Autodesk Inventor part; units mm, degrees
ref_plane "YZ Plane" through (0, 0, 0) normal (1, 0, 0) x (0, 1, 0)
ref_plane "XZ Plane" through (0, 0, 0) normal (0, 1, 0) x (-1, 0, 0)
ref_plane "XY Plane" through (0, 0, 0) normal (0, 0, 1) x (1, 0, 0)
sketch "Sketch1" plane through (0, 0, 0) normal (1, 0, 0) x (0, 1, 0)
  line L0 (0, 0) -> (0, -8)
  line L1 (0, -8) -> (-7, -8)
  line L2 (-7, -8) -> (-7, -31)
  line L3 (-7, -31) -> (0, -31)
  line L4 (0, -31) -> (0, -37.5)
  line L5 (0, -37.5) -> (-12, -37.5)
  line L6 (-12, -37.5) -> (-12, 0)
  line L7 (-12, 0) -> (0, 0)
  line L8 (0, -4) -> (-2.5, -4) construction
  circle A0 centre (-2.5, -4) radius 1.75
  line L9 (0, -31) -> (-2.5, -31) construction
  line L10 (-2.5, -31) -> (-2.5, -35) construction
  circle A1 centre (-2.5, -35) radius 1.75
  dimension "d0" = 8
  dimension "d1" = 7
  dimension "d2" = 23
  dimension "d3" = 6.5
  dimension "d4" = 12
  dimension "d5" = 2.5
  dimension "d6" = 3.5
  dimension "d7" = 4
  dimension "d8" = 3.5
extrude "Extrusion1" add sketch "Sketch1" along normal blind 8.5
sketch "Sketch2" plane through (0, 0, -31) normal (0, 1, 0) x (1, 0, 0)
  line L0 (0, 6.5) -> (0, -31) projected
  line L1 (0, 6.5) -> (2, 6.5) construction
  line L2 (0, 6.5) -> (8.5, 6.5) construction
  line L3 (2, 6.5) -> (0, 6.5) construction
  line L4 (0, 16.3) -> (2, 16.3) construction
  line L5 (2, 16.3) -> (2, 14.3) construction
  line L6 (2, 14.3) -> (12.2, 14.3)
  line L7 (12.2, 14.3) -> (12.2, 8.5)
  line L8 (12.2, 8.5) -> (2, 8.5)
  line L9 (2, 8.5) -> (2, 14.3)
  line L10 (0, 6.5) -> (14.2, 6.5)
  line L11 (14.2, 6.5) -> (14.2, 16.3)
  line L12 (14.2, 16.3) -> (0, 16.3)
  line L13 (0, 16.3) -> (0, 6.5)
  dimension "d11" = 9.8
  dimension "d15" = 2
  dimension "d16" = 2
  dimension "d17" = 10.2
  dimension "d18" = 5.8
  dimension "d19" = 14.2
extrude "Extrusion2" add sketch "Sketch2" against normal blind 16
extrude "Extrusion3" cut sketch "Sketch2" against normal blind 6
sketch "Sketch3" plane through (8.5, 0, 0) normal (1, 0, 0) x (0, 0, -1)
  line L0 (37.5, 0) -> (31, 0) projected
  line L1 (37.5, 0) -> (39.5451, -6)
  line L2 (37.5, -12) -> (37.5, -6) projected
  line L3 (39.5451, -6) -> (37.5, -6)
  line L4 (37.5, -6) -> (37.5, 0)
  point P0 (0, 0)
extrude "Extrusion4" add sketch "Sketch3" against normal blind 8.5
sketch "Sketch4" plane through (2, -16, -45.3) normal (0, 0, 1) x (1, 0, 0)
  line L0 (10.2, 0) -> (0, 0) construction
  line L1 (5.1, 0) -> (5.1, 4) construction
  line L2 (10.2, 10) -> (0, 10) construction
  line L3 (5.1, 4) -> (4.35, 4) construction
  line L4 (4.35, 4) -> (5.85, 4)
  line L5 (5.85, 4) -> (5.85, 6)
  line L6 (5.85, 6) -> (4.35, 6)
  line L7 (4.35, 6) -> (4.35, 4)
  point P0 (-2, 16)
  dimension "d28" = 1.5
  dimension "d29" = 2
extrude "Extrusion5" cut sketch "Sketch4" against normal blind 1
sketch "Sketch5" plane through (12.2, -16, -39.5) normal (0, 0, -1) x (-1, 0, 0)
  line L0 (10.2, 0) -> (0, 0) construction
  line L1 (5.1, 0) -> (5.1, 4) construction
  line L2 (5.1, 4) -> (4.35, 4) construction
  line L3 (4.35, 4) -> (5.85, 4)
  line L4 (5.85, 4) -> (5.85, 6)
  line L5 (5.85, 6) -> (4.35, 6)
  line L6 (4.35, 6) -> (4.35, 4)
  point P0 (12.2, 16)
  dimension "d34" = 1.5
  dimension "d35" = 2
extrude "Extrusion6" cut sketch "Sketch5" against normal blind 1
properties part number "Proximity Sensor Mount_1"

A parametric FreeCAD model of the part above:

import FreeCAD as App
import Part
import Sketcher

V = App.Vector
Q = App.Units.Quantity

doc = App.newDocument("Part")
body = doc.addObject("PartDesign::Body", "Body")

sketch1 = body.newObject("Sketcher::SketchObject", "Sketch")
sketch1.AttachmentSupport = (doc.getObject("YZ_Plane"), [""])
sketch1.MapMode = "FlatFace"
sketch1.addGeometry([
    Part.LineSegment(V(0, -8, 0), V(0, 0, 0)),
    Part.LineSegment(V(0, 0, 0), V(-12, 0, 0)),
    Part.LineSegment(V(-12, 0, 0), V(-12, -37.5, 0)),
    Part.LineSegment(V(-12, -37.5, 0), V(0, -37.5, 0)),
    Part.LineSegment(V(0, -37.5, 0), V(0, -31, 0)),
    Part.LineSegment(V(0, -31, 0), V(-7, -31, 0)),
    Part.LineSegment(V(-7, -31, 0), V(-7, -8, 0)),
    Part.LineSegment(V(-7, -8, 0), V(0, -8, 0)),
    Part.Circle(V(-2.5, -35, 0), V(0, 0, 1), 1.8),
    Part.Circle(V(-2.5, -4, 0), V(0, 0, 1), 1.8),
], False)
sketch1.addConstraint([
    Sketcher.Constraint("Coincident", 0, 2, 1, 1),
    Sketcher.Constraint("Coincident", 1, 2, 2, 1),
    Sketcher.Constraint("Coincident", 2, 2, 3, 1),
    Sketcher.Constraint("Coincident", 3, 2, 4, 1),
    Sketcher.Constraint("Coincident", 4, 2, 5, 1),
    Sketcher.Constraint("Coincident", 5, 2, 6, 1),
    Sketcher.Constraint("Coincident", 6, 2, 7, 1),
    Sketcher.Constraint("Coincident", 7, 2, 0, 1),
    Sketcher.Constraint("Vertical", 0),
    Sketcher.Constraint("Horizontal", 1),
    Sketcher.Constraint("Vertical", 2),
    Sketcher.Constraint("Horizontal", 3),
    Sketcher.Constraint("Vertical", 4),
    Sketcher.Constraint("Horizontal", 5),
    Sketcher.Constraint("Vertical", 6),
    Sketcher.Constraint("Horizontal", 7),
    Sketcher.Constraint("Coincident", 0, 2, -1, 1),
    Sketcher.Constraint("Equal", 8, 9),
    Sketcher.Constraint("PointOnObject", 3, 2, -2),
    Sketcher.Constraint("Vertical", 8, 3, 9, 3),
    Sketcher.Constraint("Diameter", 8, Q("3.5 mm")),
    Sketcher.Constraint("DistanceX", 1, 2, 1, 1, Q("12 mm")),
    Sketcher.Constraint("DistanceX", 5, 2, 5, 1, Q("7 mm")),
    Sketcher.Constraint("DistanceY", 0, 1, 0, 2, Q("8 mm")),
    Sketcher.Constraint("DistanceY", 6, 1, 6, 2, Q("23 mm")),
    Sketcher.Constraint("DistanceY", 4, 1, 4, 2, Q("6.5 mm")),
    Sketcher.Constraint("DistanceY", 9, 3, -1, 1, Q("4 mm")),
    Sketcher.Constraint("DistanceY", 8, 3, 4, 2, Q("4 mm")),
    Sketcher.Constraint("DistanceX", 8, 3, -1, 1, Q("2.5 mm")),
])
pad1 = body.newObject("PartDesign::Pad", "Pad")
pad1.Profile = sketch1
pad1.Length = 8.5

sketch2 = body.newObject("Sketcher::SketchObject", "Sketch001")
sketch2.AttachmentSupport = (doc.getObject("XZ_Plane"), [""])
sketch2.MapMode = "FlatFace"
sketch2.addGeometry([
    Part.LineSegment(V(0, -47, 0), V(0, -38, 0)),
    Part.LineSegment(V(0, -38, 0), V(14, -38, 0)),
    Part.LineSegment(V(14, -38, 0), V(14, -47, 0)),
    Part.LineSegment(V(14, -47, 0), V(0, -47, 0)),
    Part.LineSegment(V(2, -40, 0), V(2, -45, 0)),
    Part.LineSegment(V(2, -45, 0), V(12, -45, 0)),
    Part.LineSegment(V(12, -45, 0), V(12, -40, 0)),
    Part.LineSegment(V(12, -40, 0), V(2, -40, 0)),
], False)
sketch2.addConstraint([
    Sketcher.Constraint("Coincident", 0, 2, 1, 1),
    Sketcher.Constraint("Coincident", 1, 2, 2, 1),
    Sketcher.Constraint("Coincident", 2, 2, 3, 1),
    Sketcher.Constraint("Coincident", 3, 2, 0, 1),
    Sketcher.Constraint("Coincident", 4, 2, 5, 1),
    Sketcher.Constraint("Coincident", 5, 2, 6, 1),
    Sketcher.Constraint("Coincident", 6, 2, 7, 1),
    Sketcher.Constraint("Coincident", 7, 2, 4, 1),
    Sketcher.Constraint("Vertical", 0),
    Sketcher.Constraint("Horizontal", 1),
    Sketcher.Constraint("Vertical", 2),
    Sketcher.Constraint("Horizontal", 3),
    Sketcher.Constraint("Vertical", 4),
    Sketcher.Constraint("Horizontal", 5),
    Sketcher.Constraint("Vertical", 6),
    Sketcher.Constraint("Horizontal", 7),
    Sketcher.Constraint("PointOnObject", 0, 2, -2),
    Sketcher.Constraint("DistanceX", 1, 1, 1, 2, Q("14.2 mm")),
    Sketcher.Constraint("DistanceX", 5, 1, 5, 2, Q("10.2 mm")),
    Sketcher.Constraint("DistanceY", 0, 1, 0, 2, Q("9.8 mm")),
    Sketcher.Constraint("DistanceY", 4, 2, 4, 1, Q("5.8 mm")),
    Sketcher.Constraint("DistanceX", -1, 1, 4, 2, Q("2 mm")),
    Sketcher.Constraint("DistanceY", 3, 2, 4, 2, Q("2 mm")),
    Sketcher.Constraint("DistanceY", 0, 2, -1, 1, Q("37.5 mm")),
])
pad2 = body.newObject("PartDesign::Pad", "Pad001")
pad2.Profile = sketch2
pad2.Length = 16

sketch3 = body.newObject("Sketcher::SketchObject", "Sketch002")
sketch3.AttachmentSupport = (doc.getObject("XZ_Plane"), [""])
sketch3.MapMode = "FlatFace"
sketch3.addGeometry([
    Part.LineSegment(V(0, -47, 0), V(0, -38, 0)),
    Part.LineSegment(V(0, -38, 0), V(14, -38, 0)),
    Part.LineSegment(V(14, -38, 0), V(14, -47, 0)),
    Part.LineSegment(V(14, -47, 0), V(0, -47, 0)),
    Part.LineSegment(V(2, -40, 0), V(2, -45, 0)),
    Part.LineSegment(V(2, -45, 0), V(12, -45, 0)),
    Part.LineSegment(V(12, -45, 0), V(12, -40, 0)),
    Part.LineSegment(V(12, -40, 0), V(2, -40, 0)),
], False)
sketch3.addConstraint([
    Sketcher.Constraint("Coincident", 0, 2, 1, 1),
    Sketcher.Constraint("Coincident", 1, 2, 2, 1),
    Sketcher.Constraint("Coincident", 2, 2, 3, 1),
    Sketcher.Constraint("Coincident", 3, 2, 0, 1),
    Sketcher.Constraint("Coincident", 4, 2, 5, 1),
    Sketcher.Constraint("Coincident", 5, 2, 6, 1),
    Sketcher.Constraint("Coincident", 6, 2, 7, 1),
    Sketcher.Constraint("Coincident", 7, 2, 4, 1),
    Sketcher.Constraint("Vertical", 0),
    Sketcher.Constraint("Horizontal", 1),
    Sketcher.Constraint("Vertical", 2),
    Sketcher.Constraint("Horizontal", 3),
    Sketcher.Constraint("Vertical", 4),
    Sketcher.Constraint("Horizontal", 5),
    Sketcher.Constraint("Vertical", 6),
    Sketcher.Constraint("Horizontal", 7),
    Sketcher.Constraint("PointOnObject", 0, 2, -2),
    Sketcher.Constraint("DistanceX", 1, 1, 1, 2, Q("14.2 mm")),
    Sketcher.Constraint("DistanceX", 5, 1, 5, 2, Q("10.2 mm")),
    Sketcher.Constraint("DistanceY", 0, 1, 0, 2, Q("9.8 mm")),
    Sketcher.Constraint("DistanceY", 4, 2, 4, 1, Q("5.8 mm")),
    Sketcher.Constraint("DistanceX", -1, 1, 4, 2, Q("2 mm")),
    Sketcher.Constraint("DistanceY", 3, 2, 4, 2, Q("2 mm")),
    Sketcher.Constraint("DistanceY", 0, 2, -1, 1, Q("37.5 mm")),
])
pocket1 = body.newObject("PartDesign::Pocket", "Pocket")
pocket1.Profile = sketch3
pocket1.Length = 6
pocket1.Reversed = True

sketch4 = body.newObject("Sketcher::SketchObject", "Sketch003")
sketch4.AttachmentSupport = (doc.getObject("YZ_Plane"), [""])
sketch4.MapMode = "FlatFace"
sketch4.AttachmentOffset = App.Placement(V(0, 0, 8.5), App.Rotation())
sketch4.addGeometry([
    Part.LineSegment(V(-6, -39.5, 0), V(0, -37.5, 0)),
    Part.LineSegment(V(0, -37.5, 0), V(-6, -37.5, 0)),
    Part.LineSegment(V(-6, -37.5, 0), V(-6, -39.5, 0)),
], False)
sketch4.addConstraint([
    Sketcher.Constraint("Coincident", 0, 2, 1, 1),
    Sketcher.Constraint("Coincident", 1, 2, 2, 1),
    Sketcher.Constraint("Coincident", 2, 2, 0, 1),
    Sketcher.Constraint("Horizontal", 1),
    Sketcher.Constraint("Vertical", 2),
    Sketcher.Constraint("PointOnObject", 0, 2, -2),
    Sketcher.Constraint("DistanceX", 1, 2, 1, 1, Q("6 mm")),
    Sketcher.Constraint("DistanceY", 0, 2, -1, 1, Q("37.5 mm")),
    Sketcher.Constraint("DistanceY", 2, 2, 2, 1, Q("2.045 mm")),
])
pad3 = body.newObject("PartDesign::Pad", "Pad002")
pad3.Profile = sketch4
pad3.Length = 8.5
pad3.Reversed = True

sketch5 = body.newObject("Sketcher::SketchObject", "Sketch004")
sketch5.AttachmentSupport = (doc.getObject("XY_Plane"), [""])
sketch5.MapMode = "FlatFace"
sketch5.AttachmentOffset = App.Placement(V(0, 0, -45.3), App.Rotation())
sketch5.addGeometry([
    Part.LineSegment(V(6.3, -10, 0), V(6.3, -12, 0)),
    Part.LineSegment(V(6.3, -12, 0), V(7.8, -12, 0)),
    Part.LineSegment(V(7.8, -12, 0), V(7.8, -10, 0)),
    Part.LineSegment(V(7.8, -10, 0), V(6.3, -10, 0)),
], False)
sketch5.addConstraint([
    Sketcher.Constraint("Coincident", 0, 2, 1, 1),
    Sketcher.Constraint("Coincident", 1, 2, 2, 1),
    Sketcher.Constraint("Coincident", 2, 2, 3, 1),
    Sketcher.Constraint("Coincident", 3, 2, 0, 1),
    Sketcher.Constraint("Vertical", 0),
    Sketcher.Constraint("Horizontal", 1),
    Sketcher.Constraint("Vertical", 2),
    Sketcher.Constraint("Horizontal", 3),
    Sketcher.Constraint("DistanceY", 0, 2, 0, 1, Q("2 mm")),
    Sketcher.Constraint("DistanceX", 1, 1, 1, 2, Q("1.5 mm")),
    Sketcher.Constraint("DistanceY", 0, 2, -1, 1, Q("12 mm")),
    Sketcher.Constraint("DistanceX", -1, 1, 0, 2, Q("6.35 mm")),
])
pocket2 = body.newObject("PartDesign::Pocket", "Pocket001")
pocket2.Profile = sketch5
pocket2.Length = 1

sketch6 = body.newObject("Sketcher::SketchObject", "Sketch005")
sketch6.AttachmentSupport = (doc.getObject("XY_Plane"), [""])
sketch6.MapMode = "FlatFace"
sketch6.AttachmentOffset = App.Placement(V(0, 0, -39.5), App.Rotation())
sketch6.addGeometry([
    Part.LineSegment(V(7.8, -10, 0), V(7.8, -12, 0)),
    Part.LineSegment(V(7.8, -12, 0), V(6.3, -12, 0)),
    Part.LineSegment(V(6.3, -12, 0), V(6.3, -10, 0)),
    Part.LineSegment(V(6.3, -10, 0), V(7.8, -10, 0)),
], False)
sketch6.addConstraint([
    Sketcher.Constraint("Coincident", 0, 2, 1, 1),
    Sketcher.Constraint("Coincident", 1, 2, 2, 1),
    Sketcher.Constraint("Coincident", 2, 2, 3, 1),
    Sketcher.Constraint("Coincident", 3, 2, 0, 1),
    Sketcher.Constraint("Vertical", 0),
    Sketcher.Constraint("Horizontal", 1),
    Sketcher.Constraint("Vertical", 2),
    Sketcher.Constraint("Horizontal", 3),
    Sketcher.Constraint("DistanceY", 0, 2, 0, 1, Q("2 mm")),
    Sketcher.Constraint("DistanceX", 1, 2, 1, 1, Q("1.5 mm")),
    Sketcher.Constraint("DistanceY", 0, 2, -1, 1, Q("12 mm")),
    Sketcher.Constraint("DistanceX", -1, 1, 0, 2, Q("7.85 mm")),
])
pocket3 = body.newObject("PartDesign::Pocket", "Pocket002")
pocket3.Profile = sketch6
pocket3.Length = 1
pocket3.Reversed = True

doc.recompute()
